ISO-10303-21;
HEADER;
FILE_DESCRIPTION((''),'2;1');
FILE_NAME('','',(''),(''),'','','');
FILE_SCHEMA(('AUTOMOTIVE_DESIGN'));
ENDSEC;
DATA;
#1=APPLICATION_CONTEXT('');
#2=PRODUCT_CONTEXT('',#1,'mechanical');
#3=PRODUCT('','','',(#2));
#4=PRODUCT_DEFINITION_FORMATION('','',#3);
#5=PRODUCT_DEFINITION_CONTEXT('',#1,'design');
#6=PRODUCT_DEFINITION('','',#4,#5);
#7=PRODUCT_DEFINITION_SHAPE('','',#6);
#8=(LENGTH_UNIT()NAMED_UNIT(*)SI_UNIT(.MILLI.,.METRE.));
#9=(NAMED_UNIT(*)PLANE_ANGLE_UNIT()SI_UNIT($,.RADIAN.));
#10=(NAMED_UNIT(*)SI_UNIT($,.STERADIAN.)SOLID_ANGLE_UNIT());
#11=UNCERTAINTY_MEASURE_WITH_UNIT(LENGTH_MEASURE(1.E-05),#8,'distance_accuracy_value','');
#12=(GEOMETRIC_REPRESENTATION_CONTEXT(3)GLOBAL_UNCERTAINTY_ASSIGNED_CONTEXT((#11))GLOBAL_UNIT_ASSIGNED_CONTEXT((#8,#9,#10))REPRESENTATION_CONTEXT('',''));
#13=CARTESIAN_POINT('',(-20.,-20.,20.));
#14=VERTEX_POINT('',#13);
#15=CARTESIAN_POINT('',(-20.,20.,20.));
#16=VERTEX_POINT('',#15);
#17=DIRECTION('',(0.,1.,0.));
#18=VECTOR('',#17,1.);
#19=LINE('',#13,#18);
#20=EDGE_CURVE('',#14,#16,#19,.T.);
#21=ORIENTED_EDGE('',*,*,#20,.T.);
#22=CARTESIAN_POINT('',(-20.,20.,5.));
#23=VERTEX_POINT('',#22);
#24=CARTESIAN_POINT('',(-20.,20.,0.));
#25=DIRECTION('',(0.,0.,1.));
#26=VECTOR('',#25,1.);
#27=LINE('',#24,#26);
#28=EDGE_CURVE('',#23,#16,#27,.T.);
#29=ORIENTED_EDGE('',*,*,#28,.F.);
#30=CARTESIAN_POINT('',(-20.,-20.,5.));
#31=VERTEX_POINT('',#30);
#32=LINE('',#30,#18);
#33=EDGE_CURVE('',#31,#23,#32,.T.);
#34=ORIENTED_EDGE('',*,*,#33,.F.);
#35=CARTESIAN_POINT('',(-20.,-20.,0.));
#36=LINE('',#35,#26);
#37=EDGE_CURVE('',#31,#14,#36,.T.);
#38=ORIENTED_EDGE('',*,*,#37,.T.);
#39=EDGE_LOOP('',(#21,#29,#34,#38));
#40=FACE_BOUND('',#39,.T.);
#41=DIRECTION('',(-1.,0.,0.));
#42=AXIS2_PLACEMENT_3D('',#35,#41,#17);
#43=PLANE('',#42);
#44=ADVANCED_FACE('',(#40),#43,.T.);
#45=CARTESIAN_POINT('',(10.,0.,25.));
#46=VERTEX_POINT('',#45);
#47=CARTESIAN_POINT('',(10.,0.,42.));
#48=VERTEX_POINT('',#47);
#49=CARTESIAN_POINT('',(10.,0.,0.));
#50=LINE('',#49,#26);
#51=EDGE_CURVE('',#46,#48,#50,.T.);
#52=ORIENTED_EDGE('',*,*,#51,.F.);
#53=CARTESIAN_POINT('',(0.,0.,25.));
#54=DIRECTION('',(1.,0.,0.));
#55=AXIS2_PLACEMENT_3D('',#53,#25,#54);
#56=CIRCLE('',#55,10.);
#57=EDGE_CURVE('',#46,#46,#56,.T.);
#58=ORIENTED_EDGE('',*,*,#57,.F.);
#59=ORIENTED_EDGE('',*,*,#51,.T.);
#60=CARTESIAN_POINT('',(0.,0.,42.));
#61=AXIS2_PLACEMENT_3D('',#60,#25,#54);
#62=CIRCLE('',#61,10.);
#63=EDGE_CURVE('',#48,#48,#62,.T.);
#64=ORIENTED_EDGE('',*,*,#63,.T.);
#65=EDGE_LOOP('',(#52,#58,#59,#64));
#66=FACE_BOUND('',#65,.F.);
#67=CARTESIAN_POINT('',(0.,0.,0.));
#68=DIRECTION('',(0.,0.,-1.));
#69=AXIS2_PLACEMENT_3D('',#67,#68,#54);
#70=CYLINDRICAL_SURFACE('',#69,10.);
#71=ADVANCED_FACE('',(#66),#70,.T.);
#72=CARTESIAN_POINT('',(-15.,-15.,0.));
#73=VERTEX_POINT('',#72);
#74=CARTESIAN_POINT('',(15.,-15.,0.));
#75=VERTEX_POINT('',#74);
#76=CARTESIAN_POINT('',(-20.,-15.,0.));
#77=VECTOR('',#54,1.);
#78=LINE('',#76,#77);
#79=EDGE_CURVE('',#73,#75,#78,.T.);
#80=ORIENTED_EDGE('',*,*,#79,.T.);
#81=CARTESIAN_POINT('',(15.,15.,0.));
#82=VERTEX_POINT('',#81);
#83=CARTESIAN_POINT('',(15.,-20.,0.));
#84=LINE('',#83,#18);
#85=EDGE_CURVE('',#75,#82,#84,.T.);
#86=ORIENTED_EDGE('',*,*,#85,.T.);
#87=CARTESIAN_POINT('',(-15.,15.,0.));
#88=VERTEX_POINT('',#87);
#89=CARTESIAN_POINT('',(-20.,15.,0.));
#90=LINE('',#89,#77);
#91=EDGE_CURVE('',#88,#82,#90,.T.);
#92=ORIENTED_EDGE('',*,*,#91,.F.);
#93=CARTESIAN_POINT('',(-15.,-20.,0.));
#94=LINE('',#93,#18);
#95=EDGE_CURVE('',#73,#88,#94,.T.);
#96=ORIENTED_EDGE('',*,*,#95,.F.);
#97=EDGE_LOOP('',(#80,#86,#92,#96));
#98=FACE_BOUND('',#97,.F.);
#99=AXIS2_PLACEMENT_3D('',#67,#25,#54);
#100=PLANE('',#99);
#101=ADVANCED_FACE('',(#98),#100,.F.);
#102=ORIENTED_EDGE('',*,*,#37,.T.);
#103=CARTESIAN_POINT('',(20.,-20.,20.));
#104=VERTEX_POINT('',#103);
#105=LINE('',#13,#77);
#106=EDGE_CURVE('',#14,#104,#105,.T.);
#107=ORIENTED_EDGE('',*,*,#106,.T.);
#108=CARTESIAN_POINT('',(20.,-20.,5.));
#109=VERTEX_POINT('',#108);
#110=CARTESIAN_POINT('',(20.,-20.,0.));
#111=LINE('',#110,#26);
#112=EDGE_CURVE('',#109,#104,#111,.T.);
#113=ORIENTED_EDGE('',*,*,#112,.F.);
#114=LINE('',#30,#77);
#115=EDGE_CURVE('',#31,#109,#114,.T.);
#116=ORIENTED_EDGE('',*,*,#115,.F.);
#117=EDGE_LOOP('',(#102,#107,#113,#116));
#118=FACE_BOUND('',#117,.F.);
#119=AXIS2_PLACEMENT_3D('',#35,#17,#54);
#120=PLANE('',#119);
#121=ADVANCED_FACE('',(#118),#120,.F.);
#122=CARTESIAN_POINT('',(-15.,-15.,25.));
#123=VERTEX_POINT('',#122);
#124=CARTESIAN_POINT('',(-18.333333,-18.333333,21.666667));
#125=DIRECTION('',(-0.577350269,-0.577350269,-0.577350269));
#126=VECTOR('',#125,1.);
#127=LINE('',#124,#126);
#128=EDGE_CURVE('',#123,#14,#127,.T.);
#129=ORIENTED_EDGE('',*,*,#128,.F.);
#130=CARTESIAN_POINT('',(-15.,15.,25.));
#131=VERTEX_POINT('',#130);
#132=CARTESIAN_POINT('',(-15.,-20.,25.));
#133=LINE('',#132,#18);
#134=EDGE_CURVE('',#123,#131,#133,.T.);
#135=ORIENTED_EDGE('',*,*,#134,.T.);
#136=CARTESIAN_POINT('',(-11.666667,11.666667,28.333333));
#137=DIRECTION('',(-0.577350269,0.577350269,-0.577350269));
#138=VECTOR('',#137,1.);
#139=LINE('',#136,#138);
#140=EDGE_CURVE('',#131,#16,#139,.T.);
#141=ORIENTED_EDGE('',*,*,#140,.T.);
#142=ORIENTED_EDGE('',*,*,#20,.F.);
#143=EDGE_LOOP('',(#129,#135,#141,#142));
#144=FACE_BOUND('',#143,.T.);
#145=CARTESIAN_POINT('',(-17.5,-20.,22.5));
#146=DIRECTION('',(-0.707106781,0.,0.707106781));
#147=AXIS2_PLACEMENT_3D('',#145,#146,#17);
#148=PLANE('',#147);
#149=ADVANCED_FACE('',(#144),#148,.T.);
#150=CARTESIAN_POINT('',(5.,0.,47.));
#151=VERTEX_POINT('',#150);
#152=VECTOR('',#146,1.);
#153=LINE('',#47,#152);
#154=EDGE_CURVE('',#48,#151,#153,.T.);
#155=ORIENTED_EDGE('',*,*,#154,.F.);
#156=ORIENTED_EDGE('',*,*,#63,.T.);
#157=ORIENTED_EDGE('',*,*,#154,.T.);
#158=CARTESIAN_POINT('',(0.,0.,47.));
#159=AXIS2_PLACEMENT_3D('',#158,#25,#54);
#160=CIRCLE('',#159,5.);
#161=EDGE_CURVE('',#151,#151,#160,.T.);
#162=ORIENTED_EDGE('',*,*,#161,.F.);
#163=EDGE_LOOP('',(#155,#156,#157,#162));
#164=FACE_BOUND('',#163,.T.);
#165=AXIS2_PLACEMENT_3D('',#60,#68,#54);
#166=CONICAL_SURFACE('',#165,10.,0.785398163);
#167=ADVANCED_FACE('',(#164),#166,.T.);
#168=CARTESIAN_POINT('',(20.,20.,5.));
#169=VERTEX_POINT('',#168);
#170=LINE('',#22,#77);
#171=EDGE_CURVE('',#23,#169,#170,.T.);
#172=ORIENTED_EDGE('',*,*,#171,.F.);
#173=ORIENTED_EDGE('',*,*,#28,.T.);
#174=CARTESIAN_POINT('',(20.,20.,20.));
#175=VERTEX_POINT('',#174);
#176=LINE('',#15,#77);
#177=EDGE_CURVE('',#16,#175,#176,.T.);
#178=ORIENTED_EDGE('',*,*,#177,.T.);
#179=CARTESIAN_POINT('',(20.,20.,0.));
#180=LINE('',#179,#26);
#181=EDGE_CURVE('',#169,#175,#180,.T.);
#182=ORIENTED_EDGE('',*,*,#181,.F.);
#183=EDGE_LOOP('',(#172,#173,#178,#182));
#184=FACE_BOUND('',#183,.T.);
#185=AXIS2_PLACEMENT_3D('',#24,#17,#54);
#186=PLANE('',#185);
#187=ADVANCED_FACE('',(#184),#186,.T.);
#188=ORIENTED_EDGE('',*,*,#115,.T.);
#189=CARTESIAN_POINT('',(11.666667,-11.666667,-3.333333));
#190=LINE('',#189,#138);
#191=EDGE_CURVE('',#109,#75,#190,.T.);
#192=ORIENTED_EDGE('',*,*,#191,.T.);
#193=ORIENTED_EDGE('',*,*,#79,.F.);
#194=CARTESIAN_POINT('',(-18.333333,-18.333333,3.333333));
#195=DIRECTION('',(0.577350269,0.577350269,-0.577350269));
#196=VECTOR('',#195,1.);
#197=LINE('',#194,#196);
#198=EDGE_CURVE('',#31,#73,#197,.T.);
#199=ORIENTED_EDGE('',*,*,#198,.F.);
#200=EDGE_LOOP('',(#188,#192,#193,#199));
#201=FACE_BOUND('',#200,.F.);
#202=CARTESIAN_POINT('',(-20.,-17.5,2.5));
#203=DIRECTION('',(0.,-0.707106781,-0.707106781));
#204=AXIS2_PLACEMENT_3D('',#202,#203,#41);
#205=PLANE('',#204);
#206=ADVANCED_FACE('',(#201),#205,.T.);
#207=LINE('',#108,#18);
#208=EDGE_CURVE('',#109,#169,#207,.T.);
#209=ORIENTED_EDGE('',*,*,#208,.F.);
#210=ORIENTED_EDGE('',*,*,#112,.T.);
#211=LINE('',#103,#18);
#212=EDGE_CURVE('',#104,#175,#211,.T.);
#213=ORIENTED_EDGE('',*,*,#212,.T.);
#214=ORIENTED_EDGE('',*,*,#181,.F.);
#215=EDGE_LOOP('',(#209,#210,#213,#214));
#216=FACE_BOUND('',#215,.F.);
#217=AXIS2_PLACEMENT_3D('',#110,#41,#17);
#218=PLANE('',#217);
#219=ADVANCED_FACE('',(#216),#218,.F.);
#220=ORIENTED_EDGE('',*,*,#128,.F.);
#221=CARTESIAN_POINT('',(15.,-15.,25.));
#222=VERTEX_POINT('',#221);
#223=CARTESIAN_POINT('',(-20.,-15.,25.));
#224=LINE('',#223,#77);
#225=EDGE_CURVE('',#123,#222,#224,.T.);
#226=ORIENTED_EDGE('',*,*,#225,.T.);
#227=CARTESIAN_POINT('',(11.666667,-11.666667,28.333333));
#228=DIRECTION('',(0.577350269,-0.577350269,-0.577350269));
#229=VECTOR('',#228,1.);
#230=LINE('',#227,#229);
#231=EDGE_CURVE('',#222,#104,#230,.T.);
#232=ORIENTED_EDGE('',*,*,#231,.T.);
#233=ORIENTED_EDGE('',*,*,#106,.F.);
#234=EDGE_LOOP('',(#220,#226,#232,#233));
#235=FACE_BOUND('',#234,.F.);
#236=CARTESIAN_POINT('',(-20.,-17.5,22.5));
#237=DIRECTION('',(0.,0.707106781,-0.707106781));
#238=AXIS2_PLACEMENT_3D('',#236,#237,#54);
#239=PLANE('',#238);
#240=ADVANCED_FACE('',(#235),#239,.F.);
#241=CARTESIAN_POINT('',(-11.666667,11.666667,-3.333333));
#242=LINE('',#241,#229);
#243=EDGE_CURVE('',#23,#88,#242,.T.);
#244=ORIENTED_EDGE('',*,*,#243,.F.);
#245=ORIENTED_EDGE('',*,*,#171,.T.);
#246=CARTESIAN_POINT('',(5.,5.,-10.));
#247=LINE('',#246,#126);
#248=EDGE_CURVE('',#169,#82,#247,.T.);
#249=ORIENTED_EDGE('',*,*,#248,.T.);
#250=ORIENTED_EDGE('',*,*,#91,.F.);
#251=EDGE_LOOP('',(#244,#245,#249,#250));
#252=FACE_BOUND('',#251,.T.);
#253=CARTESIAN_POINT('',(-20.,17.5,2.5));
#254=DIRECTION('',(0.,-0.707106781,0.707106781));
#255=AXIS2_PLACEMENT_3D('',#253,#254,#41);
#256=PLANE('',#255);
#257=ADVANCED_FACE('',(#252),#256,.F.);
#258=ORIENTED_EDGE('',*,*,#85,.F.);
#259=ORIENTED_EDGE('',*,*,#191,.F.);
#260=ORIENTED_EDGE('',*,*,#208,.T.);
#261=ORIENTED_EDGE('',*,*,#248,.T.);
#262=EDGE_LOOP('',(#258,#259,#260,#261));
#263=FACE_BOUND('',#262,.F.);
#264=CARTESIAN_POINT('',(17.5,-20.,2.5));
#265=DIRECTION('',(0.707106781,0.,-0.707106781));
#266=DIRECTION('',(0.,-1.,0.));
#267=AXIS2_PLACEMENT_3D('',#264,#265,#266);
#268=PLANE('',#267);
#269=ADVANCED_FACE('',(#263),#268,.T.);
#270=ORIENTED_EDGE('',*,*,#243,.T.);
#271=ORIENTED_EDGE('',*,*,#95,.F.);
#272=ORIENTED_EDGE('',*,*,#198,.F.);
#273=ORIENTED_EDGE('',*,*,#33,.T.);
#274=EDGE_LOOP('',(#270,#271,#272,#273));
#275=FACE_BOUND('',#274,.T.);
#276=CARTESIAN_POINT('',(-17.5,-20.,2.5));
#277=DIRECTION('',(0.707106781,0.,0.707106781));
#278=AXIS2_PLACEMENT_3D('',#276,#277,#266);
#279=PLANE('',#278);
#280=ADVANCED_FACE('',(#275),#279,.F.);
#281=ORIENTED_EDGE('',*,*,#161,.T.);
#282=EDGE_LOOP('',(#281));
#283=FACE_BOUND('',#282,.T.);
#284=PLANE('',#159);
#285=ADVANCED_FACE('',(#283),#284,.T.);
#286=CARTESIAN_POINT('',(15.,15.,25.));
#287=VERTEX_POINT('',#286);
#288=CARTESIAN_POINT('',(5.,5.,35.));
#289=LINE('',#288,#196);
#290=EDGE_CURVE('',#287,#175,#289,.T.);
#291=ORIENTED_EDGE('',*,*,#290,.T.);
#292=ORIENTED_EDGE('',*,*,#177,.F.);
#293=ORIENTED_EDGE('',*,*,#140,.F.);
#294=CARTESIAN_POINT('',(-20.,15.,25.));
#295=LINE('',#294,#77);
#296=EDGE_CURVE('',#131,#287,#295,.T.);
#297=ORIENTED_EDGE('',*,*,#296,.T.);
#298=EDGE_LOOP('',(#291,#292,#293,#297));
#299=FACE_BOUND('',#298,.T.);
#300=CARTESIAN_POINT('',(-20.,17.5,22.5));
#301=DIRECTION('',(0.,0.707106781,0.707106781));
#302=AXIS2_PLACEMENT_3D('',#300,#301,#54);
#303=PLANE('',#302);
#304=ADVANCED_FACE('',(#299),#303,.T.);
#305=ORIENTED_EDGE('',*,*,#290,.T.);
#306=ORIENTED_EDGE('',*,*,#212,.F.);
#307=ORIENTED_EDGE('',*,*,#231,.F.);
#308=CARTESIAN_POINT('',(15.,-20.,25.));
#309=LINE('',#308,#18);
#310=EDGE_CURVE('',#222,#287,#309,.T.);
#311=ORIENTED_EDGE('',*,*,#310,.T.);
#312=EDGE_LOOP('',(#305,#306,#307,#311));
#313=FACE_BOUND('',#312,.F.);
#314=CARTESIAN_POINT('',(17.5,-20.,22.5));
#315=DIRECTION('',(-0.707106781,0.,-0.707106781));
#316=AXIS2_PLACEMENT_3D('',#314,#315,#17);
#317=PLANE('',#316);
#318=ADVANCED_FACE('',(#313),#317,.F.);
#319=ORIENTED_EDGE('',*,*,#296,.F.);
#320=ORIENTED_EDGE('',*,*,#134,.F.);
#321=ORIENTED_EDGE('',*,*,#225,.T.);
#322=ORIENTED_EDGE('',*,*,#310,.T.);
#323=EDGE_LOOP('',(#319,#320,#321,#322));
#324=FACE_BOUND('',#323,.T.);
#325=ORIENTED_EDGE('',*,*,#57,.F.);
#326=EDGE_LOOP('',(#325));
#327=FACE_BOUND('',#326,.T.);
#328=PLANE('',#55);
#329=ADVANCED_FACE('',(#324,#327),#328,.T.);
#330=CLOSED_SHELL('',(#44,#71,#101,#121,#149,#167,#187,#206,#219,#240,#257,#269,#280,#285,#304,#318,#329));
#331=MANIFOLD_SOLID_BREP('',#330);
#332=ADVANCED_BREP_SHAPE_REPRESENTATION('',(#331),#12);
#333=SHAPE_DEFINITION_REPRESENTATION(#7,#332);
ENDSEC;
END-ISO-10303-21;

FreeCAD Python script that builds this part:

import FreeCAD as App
import Part
import Sketcher
from FreeCAD import Vector


def edges_at(feature, points):
    """Names of the edges that pass closest to the given points."""
    edges = feature.Shape.Edges
    near = lambda p: min(range(len(edges)), key=lambda i: edges[i].distToShape(Part.Vertex(*p))[0])
    return sorted({f"Edge{near(p) + 1}" for p in points})

doc = App.newDocument("Part")
body = doc.addObject("PartDesign::Body", "Body")

# Sketch on XY plane
sketch1 = body.newObject("Sketcher::SketchObject", "Sketch")
sketch1.AttachmentSupport = (doc.getObject("XY_Plane"), [""])
sketch1.MapMode = "FlatFace"
sketch1.addGeometry([
    Part.LineSegment(Vector(-20, 20, 0), Vector(-20, -20, 0)),  # 0
    Part.LineSegment(Vector(-20, -20, 0), Vector(20, -20, 0)),  # 1
    Part.LineSegment(Vector(20, -20, 0), Vector(20, 20, 0)),  # 2
    Part.LineSegment(Vector(20, 20, 0), Vector(-20, 20, 0)),  # 3
    Part.Circle(Vector(0, 0, 0), Vector(0, 0, 1), 10),  # 4
], False)
sketch1.addConstraint([
    Sketcher.Constraint("Coincident", 0, 2, 1, 1),
    Sketcher.Constraint("Coincident", 1, 2, 2, 1),
    Sketcher.Constraint("Coincident", 2, 2, 3, 1),
    Sketcher.Constraint("Coincident", 3, 2, 0, 1),
    Sketcher.Constraint("Vertical", 0),
    Sketcher.Constraint("Horizontal", 1),
    Sketcher.Constraint("Vertical", 2),
    Sketcher.Constraint("Horizontal", 3),
    Sketcher.Constraint("Coincident", 4, 3, -1, 1),
    Sketcher.Constraint("Symmetric", 0, 2, 2, 2, -1, 1),
    Sketcher.Constraint("Equal", 3, 0),
    Sketcher.Constraint("Diameter", 4, 20.0),
    Sketcher.Constraint("DistanceX", 1, 1, 1, 2, 40.0),
])
pad1 = body.newObject("PartDesign::Pad", "Pad")
pad1.Profile = sketch1
pad1.Length = 25

# Sketch on XY plane
sketch2 = body.newObject("Sketcher::SketchObject", "Sketch001")
sketch2.AttachmentSupport = (doc.getObject("XY_Plane"), [""])
sketch2.MapMode = "FlatFace"
sketch2.addGeometry(Part.Circle(Vector(0, 0, 0), Vector(0, 0, 1), 10), False)
sketch2.addConstraint([
    Sketcher.Constraint("Coincident", 0, 3, -1, 1),
    Sketcher.Constraint("Diameter", 0, 20.0),
])
pad2 = body.newObject("PartDesign::Pad", "Pad001")
pad2.Profile = sketch2
pad2.Length = 47
doc.recompute()

chamfer = body.newObject("PartDesign::Chamfer", "Chamfer")
chamfer.Base = (pad2, edges_at(pad2, [
    (0, 20, 25),
    (20, 0, 25),
    (0, -20, 0),
    (20, 0, 0),
    (0, 20, 0),
    (-20, 0, 0),
    (0, -20, 25),
    (-20, 0, 25),
    (-10, 0, 47),
]))
chamfer.Size = 5

doc.recompute()
